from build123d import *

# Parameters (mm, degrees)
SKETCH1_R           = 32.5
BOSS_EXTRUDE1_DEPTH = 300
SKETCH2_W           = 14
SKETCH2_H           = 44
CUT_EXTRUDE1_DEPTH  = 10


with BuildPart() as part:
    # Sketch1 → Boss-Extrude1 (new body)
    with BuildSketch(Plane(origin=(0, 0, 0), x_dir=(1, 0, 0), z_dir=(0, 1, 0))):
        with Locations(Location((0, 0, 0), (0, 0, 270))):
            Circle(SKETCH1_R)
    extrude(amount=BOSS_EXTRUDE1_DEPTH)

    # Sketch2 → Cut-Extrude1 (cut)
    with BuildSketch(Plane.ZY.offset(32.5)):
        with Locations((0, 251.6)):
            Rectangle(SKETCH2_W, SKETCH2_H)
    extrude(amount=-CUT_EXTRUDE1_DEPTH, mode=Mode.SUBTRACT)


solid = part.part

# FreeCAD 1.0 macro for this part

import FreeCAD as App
import Part
import Sketcher

V = App.Vector


def add_polygon(sketch, points):
    """Adds a closed chain of lines whose ends are joined by coincident constraints."""
    first, n = sketch.GeometryCount, len(points)
    for a, b in zip(points, points[1:] + points[:1]):
        sketch.addGeometry(Part.LineSegment(App.Vector(*a, 0), App.Vector(*b, 0)), False)
    for i in range(n):
        sketch.addConstraint(Sketcher.Constraint("Coincident", first + i, 2, first + (i + 1) % n, 1))

doc = App.newDocument("Part")
params = doc.addObject("Spreadsheet::Sheet", "Params")
for row, (alias, value) in enumerate([
    ("sketch1_diameter", "65 mm"),
    ("pad1_length", "300 mm"),
    ("sketch2_width", "44 mm"),
    ("sketch2_height", "14 mm"),
    ("pocket1_length", "10 mm"),
], start=1):
    params.set(f"A{row}", alias)
    params.set(f"B{row}", "=" + value)
    params.setAlias(f"B{row}", alias)

body = doc.addObject("PartDesign::Body", "Body")

sketch1 = body.newObject("Sketcher::SketchObject", "Sketch")
sketch1.AttachmentSupport = (doc.getObject("XZ_Plane"), [""])
sketch1.MapMode = "FlatFace"
sketch1.addGeometry(Part.Circle(V(0, 0, 0), V(0, 0, 1), 32.5), False)
sketch1.addConstraint([
    Sketcher.Constraint("Coincident", 0, 3, -1, 1),
    Sketcher.Constraint("Diameter", 0, 65.0),
])
sketch1.setExpression("Constraints[1]", "Params.sketch1_diameter")
pad1 = body.newObject("PartDesign::Pad", "Pad")
pad1.Profile = sketch1
pad1.setExpression("Length", "Params.pad1_length")
pad1.Reversed = True

sketch2 = body.newObject("Sketcher::SketchObject", "Sketch001")
sketch2.AttachmentSupport = (doc.getObject("YZ_Plane"), [""])
sketch2.MapMode = "FlatFace"
sketch2.AttachmentOffset = App.Placement(V(0, 0, -32.5), App.Rotation())
add_polygon(sketch2, [(273.6, -7), (229.6, -7), (229.6, 7), (273.6, 7)])
sketch2.addConstraint([
    Sketcher.Constraint("Horizontal", 0),
    Sketcher.Constraint("Vertical", 1),
    Sketcher.Constraint("Horizontal", 2),
    Sketcher.Constraint("Vertical", 3),
    Sketcher.Constraint("DistanceX", 0, 2, 0, 1, 44.0),
    Sketcher.Constraint("DistanceY", 1, 1, 1, 2, 14.0),
    Sketcher.Constraint("DistanceY", 0, 2, -1, 1, 7.0),
    Sketcher.Constraint("DistanceX", -1, 1, 0, 2, 229.6),
])
sketch2.setExpression("Constraints[8]", "Params.sketch2_width")
sketch2.setExpression("Constraints[9]", "Params.sketch2_height")
pocket1 = body.newObject("PartDesign::Pocket", "Pocket")
pocket1.Profile = sketch2
pocket1.setExpression("Length", "Params.pocket1_length")
pocket1.Reversed = True

doc.recompute()
